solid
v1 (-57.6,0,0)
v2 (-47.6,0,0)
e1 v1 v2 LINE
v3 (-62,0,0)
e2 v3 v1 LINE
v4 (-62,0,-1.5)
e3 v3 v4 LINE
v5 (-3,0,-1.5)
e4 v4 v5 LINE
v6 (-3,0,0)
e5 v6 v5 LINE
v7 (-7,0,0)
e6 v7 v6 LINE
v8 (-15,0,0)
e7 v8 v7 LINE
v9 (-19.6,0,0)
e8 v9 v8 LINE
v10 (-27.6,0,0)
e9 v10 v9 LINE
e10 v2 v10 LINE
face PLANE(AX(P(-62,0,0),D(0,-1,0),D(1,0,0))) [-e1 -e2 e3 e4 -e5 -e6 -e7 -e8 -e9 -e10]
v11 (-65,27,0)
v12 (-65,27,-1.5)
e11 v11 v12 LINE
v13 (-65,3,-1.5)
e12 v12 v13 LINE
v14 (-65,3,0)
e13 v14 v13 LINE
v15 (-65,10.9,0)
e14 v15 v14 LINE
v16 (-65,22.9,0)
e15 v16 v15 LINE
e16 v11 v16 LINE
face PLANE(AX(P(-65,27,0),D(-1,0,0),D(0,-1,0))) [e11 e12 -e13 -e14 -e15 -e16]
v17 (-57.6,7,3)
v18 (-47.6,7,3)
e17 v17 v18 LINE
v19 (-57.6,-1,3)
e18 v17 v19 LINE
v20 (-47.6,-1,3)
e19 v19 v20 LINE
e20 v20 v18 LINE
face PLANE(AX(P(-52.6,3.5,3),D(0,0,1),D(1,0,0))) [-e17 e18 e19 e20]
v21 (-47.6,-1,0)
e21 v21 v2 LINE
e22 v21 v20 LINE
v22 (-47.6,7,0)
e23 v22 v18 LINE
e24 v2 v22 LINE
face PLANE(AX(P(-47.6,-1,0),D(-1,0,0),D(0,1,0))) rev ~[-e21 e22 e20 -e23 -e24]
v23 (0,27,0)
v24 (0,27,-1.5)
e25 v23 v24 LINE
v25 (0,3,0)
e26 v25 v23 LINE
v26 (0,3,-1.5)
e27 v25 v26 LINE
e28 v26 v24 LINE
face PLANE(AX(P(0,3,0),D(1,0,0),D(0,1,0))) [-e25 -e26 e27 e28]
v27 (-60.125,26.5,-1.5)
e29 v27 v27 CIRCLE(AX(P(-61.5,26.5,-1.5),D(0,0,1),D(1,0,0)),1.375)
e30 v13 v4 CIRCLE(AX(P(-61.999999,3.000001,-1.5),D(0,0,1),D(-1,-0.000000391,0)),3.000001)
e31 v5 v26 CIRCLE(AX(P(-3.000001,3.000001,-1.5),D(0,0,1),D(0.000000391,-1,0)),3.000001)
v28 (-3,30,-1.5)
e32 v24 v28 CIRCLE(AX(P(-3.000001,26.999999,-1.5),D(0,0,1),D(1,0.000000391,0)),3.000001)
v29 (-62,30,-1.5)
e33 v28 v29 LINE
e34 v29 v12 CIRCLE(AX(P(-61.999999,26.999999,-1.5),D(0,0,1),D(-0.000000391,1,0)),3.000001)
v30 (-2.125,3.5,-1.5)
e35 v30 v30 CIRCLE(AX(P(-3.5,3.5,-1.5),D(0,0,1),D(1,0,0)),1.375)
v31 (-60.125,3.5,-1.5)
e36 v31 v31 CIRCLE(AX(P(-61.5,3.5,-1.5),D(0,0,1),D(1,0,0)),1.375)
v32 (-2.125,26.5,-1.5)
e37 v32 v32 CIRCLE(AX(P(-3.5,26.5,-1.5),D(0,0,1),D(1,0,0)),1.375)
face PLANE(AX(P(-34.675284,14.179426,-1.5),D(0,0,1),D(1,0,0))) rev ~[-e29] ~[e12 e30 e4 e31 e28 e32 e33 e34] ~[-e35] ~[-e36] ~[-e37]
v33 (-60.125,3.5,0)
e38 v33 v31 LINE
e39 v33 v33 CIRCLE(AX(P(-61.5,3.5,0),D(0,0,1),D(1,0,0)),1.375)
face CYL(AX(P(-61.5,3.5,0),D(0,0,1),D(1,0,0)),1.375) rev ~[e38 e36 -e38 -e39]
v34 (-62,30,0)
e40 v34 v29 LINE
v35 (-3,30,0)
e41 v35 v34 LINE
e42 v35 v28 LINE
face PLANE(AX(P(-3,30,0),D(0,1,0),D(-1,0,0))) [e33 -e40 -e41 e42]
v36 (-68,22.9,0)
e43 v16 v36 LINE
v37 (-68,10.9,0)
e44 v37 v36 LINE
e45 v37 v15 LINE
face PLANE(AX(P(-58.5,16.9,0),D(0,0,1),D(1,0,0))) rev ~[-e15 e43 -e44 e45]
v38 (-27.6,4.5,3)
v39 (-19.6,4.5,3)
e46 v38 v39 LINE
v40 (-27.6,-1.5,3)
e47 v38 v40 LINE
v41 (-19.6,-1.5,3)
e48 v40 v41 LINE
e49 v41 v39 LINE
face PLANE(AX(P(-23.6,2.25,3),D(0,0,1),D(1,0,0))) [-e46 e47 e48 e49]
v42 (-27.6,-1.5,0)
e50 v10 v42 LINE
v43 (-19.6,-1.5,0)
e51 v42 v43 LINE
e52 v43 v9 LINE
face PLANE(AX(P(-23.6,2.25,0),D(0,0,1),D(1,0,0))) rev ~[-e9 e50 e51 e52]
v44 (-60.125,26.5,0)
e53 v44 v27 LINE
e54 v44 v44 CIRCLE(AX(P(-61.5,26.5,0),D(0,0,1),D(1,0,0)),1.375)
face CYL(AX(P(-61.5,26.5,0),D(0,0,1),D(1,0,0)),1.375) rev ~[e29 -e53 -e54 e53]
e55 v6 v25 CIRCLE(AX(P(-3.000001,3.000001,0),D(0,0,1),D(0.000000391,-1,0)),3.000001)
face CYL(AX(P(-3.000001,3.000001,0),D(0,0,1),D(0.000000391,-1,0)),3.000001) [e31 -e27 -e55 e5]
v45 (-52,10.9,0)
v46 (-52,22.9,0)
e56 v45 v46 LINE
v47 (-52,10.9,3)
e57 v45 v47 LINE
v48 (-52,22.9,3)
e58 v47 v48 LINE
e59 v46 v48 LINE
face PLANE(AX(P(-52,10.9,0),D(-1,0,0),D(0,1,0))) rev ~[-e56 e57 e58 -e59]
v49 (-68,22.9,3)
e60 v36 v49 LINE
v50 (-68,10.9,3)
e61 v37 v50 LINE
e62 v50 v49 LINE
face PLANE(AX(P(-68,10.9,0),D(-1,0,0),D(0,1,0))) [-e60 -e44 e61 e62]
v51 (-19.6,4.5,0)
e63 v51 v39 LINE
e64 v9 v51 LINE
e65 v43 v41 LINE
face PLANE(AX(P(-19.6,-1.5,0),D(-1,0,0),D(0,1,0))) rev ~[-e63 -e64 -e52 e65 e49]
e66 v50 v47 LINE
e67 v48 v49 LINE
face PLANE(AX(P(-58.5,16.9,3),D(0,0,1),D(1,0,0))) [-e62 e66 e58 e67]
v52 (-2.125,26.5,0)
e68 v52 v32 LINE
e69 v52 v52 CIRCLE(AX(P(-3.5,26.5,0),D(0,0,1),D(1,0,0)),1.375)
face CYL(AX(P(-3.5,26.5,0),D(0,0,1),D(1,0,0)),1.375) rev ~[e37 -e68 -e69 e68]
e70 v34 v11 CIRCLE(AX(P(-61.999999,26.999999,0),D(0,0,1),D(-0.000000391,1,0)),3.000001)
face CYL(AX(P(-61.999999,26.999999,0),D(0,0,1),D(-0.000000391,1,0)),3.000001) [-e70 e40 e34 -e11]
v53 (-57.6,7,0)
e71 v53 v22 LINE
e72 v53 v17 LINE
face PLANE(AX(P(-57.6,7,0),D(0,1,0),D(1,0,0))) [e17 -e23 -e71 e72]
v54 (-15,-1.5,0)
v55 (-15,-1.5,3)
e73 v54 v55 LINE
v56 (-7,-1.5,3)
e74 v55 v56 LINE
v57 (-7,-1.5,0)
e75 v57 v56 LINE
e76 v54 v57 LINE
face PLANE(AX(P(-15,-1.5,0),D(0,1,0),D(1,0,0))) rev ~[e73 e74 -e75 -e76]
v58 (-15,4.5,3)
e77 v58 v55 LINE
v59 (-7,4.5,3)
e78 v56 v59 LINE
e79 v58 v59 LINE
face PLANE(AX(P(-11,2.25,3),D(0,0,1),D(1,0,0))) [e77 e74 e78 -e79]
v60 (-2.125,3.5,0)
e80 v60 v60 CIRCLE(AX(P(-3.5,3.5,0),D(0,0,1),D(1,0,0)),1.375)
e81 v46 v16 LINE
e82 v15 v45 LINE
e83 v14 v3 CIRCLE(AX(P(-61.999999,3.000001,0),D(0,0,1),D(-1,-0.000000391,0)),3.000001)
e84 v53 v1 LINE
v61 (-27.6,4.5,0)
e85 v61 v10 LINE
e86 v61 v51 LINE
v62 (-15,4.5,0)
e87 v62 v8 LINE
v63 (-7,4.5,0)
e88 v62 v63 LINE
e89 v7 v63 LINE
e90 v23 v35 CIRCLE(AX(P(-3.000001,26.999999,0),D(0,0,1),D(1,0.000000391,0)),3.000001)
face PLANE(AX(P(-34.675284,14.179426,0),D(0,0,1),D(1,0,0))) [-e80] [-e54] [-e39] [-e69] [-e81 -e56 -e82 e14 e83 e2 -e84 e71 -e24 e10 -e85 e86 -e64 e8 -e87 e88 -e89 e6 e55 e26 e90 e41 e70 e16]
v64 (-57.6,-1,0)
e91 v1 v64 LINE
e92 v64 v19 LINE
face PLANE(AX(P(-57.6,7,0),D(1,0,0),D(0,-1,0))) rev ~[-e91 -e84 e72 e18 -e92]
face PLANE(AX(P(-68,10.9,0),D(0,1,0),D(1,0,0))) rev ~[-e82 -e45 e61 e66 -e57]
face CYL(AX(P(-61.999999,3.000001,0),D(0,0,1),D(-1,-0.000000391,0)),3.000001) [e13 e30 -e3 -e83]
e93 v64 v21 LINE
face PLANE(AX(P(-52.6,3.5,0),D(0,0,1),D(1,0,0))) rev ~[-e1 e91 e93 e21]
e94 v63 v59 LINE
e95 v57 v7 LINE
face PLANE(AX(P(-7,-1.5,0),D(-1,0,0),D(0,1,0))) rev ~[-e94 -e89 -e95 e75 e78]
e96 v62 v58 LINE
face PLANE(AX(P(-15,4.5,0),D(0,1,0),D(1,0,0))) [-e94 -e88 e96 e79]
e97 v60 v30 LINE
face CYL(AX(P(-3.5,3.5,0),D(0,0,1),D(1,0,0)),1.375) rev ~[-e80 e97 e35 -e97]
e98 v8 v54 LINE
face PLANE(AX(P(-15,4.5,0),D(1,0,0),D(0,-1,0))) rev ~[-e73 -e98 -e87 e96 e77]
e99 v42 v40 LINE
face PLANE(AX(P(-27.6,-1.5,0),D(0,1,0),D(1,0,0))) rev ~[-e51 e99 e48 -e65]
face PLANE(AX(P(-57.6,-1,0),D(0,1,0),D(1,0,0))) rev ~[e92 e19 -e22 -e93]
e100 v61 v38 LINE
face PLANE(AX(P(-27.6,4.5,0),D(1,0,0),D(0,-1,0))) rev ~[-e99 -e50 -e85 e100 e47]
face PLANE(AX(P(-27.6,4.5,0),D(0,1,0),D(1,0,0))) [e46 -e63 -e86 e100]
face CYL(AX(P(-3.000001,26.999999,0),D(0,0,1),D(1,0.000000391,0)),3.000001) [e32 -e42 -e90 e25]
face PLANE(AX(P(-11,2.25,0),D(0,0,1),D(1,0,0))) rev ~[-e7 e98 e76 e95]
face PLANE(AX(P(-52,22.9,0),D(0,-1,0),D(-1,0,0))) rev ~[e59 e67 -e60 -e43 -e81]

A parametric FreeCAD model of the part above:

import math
import FreeCAD as App
import Part
import Sketcher

doc = App.newDocument("Part")
body = doc.addObject("PartDesign::Body", "Body")

# Sketch on XY plane
sketch1 = body.newObject("Sketcher::SketchObject", "Sketch")
sketch1.AttachmentSupport = (doc.getObject("XY_Plane"), [""])
sketch1.MapMode = "FlatFace"
sketch1.addGeometry(Part.ArcOfCircle(Part.Circle(App.Vector(-3, 3, 0), App.Vector(0, 0, 1), 3), math.radians(-90), math.radians(0)), False)
sketch1.addGeometry(Part.LineSegment(App.Vector(0, 3, 0), App.Vector(0, 27, 0)), False)
sketch1.addGeometry(Part.ArcOfCircle(Part.Circle(App.Vector(-3, 27, 0), App.Vector(0, 0, 1), 3), math.radians(0), math.radians(90)), False)
sketch1.addGeometry(Part.LineSegment(App.Vector(-3, 30, 0), App.Vector(-62, 30, 0)), False)
sketch1.addGeometry(Part.ArcOfCircle(Part.Circle(App.Vector(-62, 27, 0), App.Vector(0, 0, 1), 3), math.radians(90), math.radians(180)), False)
sketch1.addGeometry(Part.LineSegment(App.Vector(-65, 27, 0), App.Vector(-65, 3, 0)), False)
sketch1.addGeometry(Part.ArcOfCircle(Part.Circle(App.Vector(-62, 3, 0), App.Vector(0, 0, 1), 3), math.radians(-180), math.radians(-90)), False)
sketch1.addGeometry(Part.LineSegment(App.Vector(-62, 0, 0), App.Vector(-3, 0, 0)), False)
sketch1.addGeometry(Part.Circle(App.Vector(-61.5, 3.5, 0), App.Vector(0, 0, 1), 1.4), False)
sketch1.addGeometry(Part.Circle(App.Vector(-3.5, 3.5, 0), App.Vector(0, 0, 1), 1.4), False)
sketch1.addGeometry(Part.Circle(App.Vector(-61.5, 26.5, 0), App.Vector(0, 0, 1), 1.4), False)
sketch1.addGeometry(Part.Circle(App.Vector(-3.5, 26.5, 0), App.Vector(0, 0, 1), 1.4), False)
sketch1.addConstraint(Sketcher.Constraint("Tangent", 0, 2, 1, 1))
sketch1.addConstraint(Sketcher.Constraint("Tangent", 1, 2, 2, 1))
sketch1.addConstraint(Sketcher.Constraint("Tangent", 2, 2, 3, 1))
sketch1.addConstraint(Sketcher.Constraint("Tangent", 3, 2, 4, 1))
sketch1.addConstraint(Sketcher.Constraint("Tangent", 4, 2, 5, 1))
sketch1.addConstraint(Sketcher.Constraint("Tangent", 5, 2, 6, 1))
sketch1.addConstraint(Sketcher.Constraint("Tangent", 6, 2, 7, 1))
sketch1.addConstraint(Sketcher.Constraint("Tangent", 7, 2, 0, 1))
sketch1.addConstraint(Sketcher.Constraint("Vertical", 1))
sketch1.addConstraint(Sketcher.Constraint("Horizontal", 3))
sketch1.addConstraint(Sketcher.Constraint("Vertical", 5))
sketch1.addConstraint(Sketcher.Constraint("Horizontal", 7))
sketch1.addConstraint(Sketcher.Constraint("Equal", 0, 2))
sketch1.addConstraint(Sketcher.Constraint("Equal", 2, 4))
sketch1.addConstraint(Sketcher.Constraint("Equal", 4, 6))
sketch1.addConstraint(Sketcher.Constraint("Equal", 8, 9))
sketch1.addConstraint(Sketcher.Constraint("Equal", 9, 10))
sketch1.addConstraint(Sketcher.Constraint("Equal", 10, 11))
sketch1.addConstraint(Sketcher.Constraint("PointOnObject", 0, 2, -2))
sketch1.addConstraint(Sketcher.Constraint("PointOnObject", 6, 2, -1))
sketch1.addConstraint(Sketcher.Constraint("Horizontal", 8, 3, 9, 3))
sketch1.addConstraint(Sketcher.Constraint("Horizontal", 10, 3, 11, 3))
sketch1.addConstraint(Sketcher.Constraint("Vertical", 8, 3, 10, 3))
sketch1.addConstraint(Sketcher.Constraint("Vertical", 9, 3, 11, 3))
sketch1.addConstraint(Sketcher.Constraint("Radius", 0, 3.000001))
sketch1.addConstraint(Sketcher.Constraint("Diameter", 8, 2.75))
sketch1.addConstraint(Sketcher.Constraint("DistanceX", 3, 2, 3, 1, 59.0))
sketch1.addConstraint(Sketcher.Constraint("DistanceY", 1, 1, 1, 2, 24.0))
sketch1.addConstraint(Sketcher.Constraint("DistanceX", 8, 3, 9, 3, 58.0))
sketch1.addConstraint(Sketcher.Constraint("DistanceY", 8, 3, 10, 3, 23.0))
sketch1.addConstraint(Sketcher.Constraint("DistanceX", 8, 3, -1, 1, 61.5))
sketch1.addConstraint(Sketcher.Constraint("DistanceY", -1, 1, 8, 3, 3.5))
pad1 = body.newObject("PartDesign::Pad", "Pad")
pad1.Profile = sketch1
pad1.Length = 1.5
pad1.Reversed = True

# Sketch on XY plane
sketch2 = body.newObject("Sketcher::SketchObject", "Sketch001")
sketch2.AttachmentSupport = (doc.getObject("XY_Plane"), [""])
sketch2.MapMode = "FlatFace"
sketch2.addGeometry(Part.LineSegment(App.Vector(-52, 11, 0), App.Vector(-52, 23, 0)), False)
sketch2.addGeometry(Part.LineSegment(App.Vector(-52, 23, 0), App.Vector(-68, 23, 0)), False)
sketch2.addGeometry(Part.LineSegment(App.Vector(-68, 23, 0), App.Vector(-68, 11, 0)), False)
sketch2.addGeometry(Part.LineSegment(App.Vector(-68, 11, 0), App.Vector(-52, 11, 0)), False)
sketch2.addGeometry(Part.LineSegment(App.Vector(-58, 7, 0), App.Vector(-58, -1, 0)), False)
sketch2.addGeometry(Part.LineSegment(App.Vector(-58, -1, 0), App.Vector(-48, -1, 0)), False)
sketch2.addGeometry(Part.LineSegment(App.Vector(-48, -1, 0), App.Vector(-48, 7, 0)), False)
sketch2.addGeometry(Part.LineSegment(App.Vector(-48, 7, 0), App.Vector(-58, 7, 0)), False)
sketch2.addGeometry(Part.LineSegment(App.Vector(-28, 4, 0), App.Vector(-28, -2, 0)), False)
sketch2.addGeometry(Part.LineSegment(App.Vector(-28, -2, 0), App.Vector(-20, -2, 0)), False)
sketch2.addGeometry(Part.LineSegment(App.Vector(-20, -2, 0), App.Vector(-20, 4, 0)), False)
sketch2.addGeometry(Part.LineSegment(App.Vector(-20, 4, 0), App.Vector(-28, 4, 0)), False)
sketch2.addGeometry(Part.LineSegment(App.Vector(-15, 4, 0), App.Vector(-15, -2, 0)), False)
sketch2.addGeometry(Part.LineSegment(App.Vector(-15, -2, 0), App.Vector(-7, -2, 0)), False)
sketch2.addGeometry(Part.LineSegment(App.Vector(-7, -2, 0), App.Vector(-7, 4, 0)), False)
sketch2.addGeometry(Part.LineSegment(App.Vector(-7, 4, 0), App.Vector(-15, 4, 0)), False)
sketch2.addConstraint(Sketcher.Constraint("Coincident", 0, 2, 1, 1))
sketch2.addConstraint(Sketcher.Constraint("Coincident", 1, 2, 2, 1))
sketch2.addConstraint(Sketcher.Constraint("Coincident", 2, 2, 3, 1))
sketch2.addConstraint(Sketcher.Constraint("Coincident", 3, 2, 0, 1))
sketch2.addConstraint(Sketcher.Constraint("Coincident", 4, 2, 5, 1))
sketch2.addConstraint(Sketcher.Constraint("Coincident", 5, 2, 6, 1))
sketch2.addConstraint(Sketcher.Constraint("Coincident", 6, 2, 7, 1))
sketch2.addConstraint(Sketcher.Constraint("Coincident", 7, 2, 4, 1))
sketch2.addConstraint(Sketcher.Constraint("Coincident", 8, 2, 9, 1))
sketch2.addConstraint(Sketcher.Constraint("Coincident", 9, 2, 10, 1))
sketch2.addConstraint(Sketcher.Constraint("Coincident", 10, 2, 11, 1))
sketch2.addConstraint(Sketcher.Constraint("Coincident", 11, 2, 8, 1))
sketch2.addConstraint(Sketcher.Constraint("Coincident", 12, 2, 13, 1))
sketch2.addConstraint(Sketcher.Constraint("Coincident", 13, 2, 14, 1))
sketch2.addConstraint(Sketcher.Constraint("Coincident", 14, 2, 15, 1))
sketch2.addConstraint(Sketcher.Constraint("Coincident", 15, 2, 12, 1))
sketch2.addConstraint(Sketcher.Constraint("Vertical", 0))
sketch2.addConstraint(Sketcher.Constraint("Horizontal", 1))
sketch2.addConstraint(Sketcher.Constraint("Vertical", 2))
sketch2.addConstraint(Sketcher.Constraint("Horizontal", 3))
sketch2.addConstraint(Sketcher.Constraint("Vertical", 4))
sketch2.addConstraint(Sketcher.Constraint("Horizontal", 5))
sketch2.addConstraint(Sketcher.Constraint("Vertical", 6))
sketch2.addConstraint(Sketcher.Constraint("Horizontal", 7))
sketch2.addConstraint(Sketcher.Constraint("Vertical", 8))
sketch2.addConstraint(Sketcher.Constraint("Horizontal", 9))
sketch2.addConstraint(Sketcher.Constraint("Vertical", 10))
sketch2.addConstraint(Sketcher.Constraint("Horizontal", 11))
sketch2.addConstraint(Sketcher.Constraint("Vertical", 12))
sketch2.addConstraint(Sketcher.Constraint("Horizontal", 13))
sketch2.addConstraint(Sketcher.Constraint("Vertical", 14))
sketch2.addConstraint(Sketcher.Constraint("Horizontal", 15))
sketch2.addConstraint(Sketcher.Constraint("Horizontal", 9, 2, 12, 2))
sketch2.addConstraint(Sketcher.Constraint("Horizontal", 11, 2, 14, 2))
sketch2.addConstraint(Sketcher.Constraint("Equal", 11, 13))
sketch2.addConstraint(Sketcher.Constraint("Equal", 15, 4))
sketch2.addConstraint(Sketcher.Constraint("DistanceX", 1, 2, 1, 1, 16.0))
sketch2.addConstraint(Sketcher.Constraint("DistanceX", 5, 1, 5, 2, 10.0))
sketch2.addConstraint(Sketcher.Constraint("DistanceX", 9, 1, 9, 2, 8.0))
sketch2.addConstraint(Sketcher.Constraint("DistanceY", 0, 1, 0, 2, 12.0))
sketch2.addConstraint(Sketcher.Constraint("DistanceY", 8, 2, 8, 1, 6.0))
sketch2.addConstraint(Sketcher.Constraint("DistanceX", 0, 2, -1, 1, 52.0))
sketch2.addConstraint(Sketcher.Constraint("DistanceY", 4, 2, -1, 1, 1.0))
sketch2.addConstraint(Sketcher.Constraint("DistanceX", 12, 2, -1, 1, 15.0))
sketch2.addConstraint(Sketcher.Constraint("DistanceX", 5, 2, 8, 2, 20.0))
sketch2.addConstraint(Sketcher.Constraint("DistanceY", -1, 1, 0, 2, 22.9))
sketch2.addConstraint(Sketcher.Constraint("DistanceX", 4, 2, -1, 1, 57.6))
sketch2.addConstraint(Sketcher.Constraint("DistanceY", 8, 2, -1, 1, 1.5))
pad2 = body.newObject("PartDesign::Pad", "Pad001")
pad2.Profile = sketch2
pad2.Length = 3

doc.recompute()
